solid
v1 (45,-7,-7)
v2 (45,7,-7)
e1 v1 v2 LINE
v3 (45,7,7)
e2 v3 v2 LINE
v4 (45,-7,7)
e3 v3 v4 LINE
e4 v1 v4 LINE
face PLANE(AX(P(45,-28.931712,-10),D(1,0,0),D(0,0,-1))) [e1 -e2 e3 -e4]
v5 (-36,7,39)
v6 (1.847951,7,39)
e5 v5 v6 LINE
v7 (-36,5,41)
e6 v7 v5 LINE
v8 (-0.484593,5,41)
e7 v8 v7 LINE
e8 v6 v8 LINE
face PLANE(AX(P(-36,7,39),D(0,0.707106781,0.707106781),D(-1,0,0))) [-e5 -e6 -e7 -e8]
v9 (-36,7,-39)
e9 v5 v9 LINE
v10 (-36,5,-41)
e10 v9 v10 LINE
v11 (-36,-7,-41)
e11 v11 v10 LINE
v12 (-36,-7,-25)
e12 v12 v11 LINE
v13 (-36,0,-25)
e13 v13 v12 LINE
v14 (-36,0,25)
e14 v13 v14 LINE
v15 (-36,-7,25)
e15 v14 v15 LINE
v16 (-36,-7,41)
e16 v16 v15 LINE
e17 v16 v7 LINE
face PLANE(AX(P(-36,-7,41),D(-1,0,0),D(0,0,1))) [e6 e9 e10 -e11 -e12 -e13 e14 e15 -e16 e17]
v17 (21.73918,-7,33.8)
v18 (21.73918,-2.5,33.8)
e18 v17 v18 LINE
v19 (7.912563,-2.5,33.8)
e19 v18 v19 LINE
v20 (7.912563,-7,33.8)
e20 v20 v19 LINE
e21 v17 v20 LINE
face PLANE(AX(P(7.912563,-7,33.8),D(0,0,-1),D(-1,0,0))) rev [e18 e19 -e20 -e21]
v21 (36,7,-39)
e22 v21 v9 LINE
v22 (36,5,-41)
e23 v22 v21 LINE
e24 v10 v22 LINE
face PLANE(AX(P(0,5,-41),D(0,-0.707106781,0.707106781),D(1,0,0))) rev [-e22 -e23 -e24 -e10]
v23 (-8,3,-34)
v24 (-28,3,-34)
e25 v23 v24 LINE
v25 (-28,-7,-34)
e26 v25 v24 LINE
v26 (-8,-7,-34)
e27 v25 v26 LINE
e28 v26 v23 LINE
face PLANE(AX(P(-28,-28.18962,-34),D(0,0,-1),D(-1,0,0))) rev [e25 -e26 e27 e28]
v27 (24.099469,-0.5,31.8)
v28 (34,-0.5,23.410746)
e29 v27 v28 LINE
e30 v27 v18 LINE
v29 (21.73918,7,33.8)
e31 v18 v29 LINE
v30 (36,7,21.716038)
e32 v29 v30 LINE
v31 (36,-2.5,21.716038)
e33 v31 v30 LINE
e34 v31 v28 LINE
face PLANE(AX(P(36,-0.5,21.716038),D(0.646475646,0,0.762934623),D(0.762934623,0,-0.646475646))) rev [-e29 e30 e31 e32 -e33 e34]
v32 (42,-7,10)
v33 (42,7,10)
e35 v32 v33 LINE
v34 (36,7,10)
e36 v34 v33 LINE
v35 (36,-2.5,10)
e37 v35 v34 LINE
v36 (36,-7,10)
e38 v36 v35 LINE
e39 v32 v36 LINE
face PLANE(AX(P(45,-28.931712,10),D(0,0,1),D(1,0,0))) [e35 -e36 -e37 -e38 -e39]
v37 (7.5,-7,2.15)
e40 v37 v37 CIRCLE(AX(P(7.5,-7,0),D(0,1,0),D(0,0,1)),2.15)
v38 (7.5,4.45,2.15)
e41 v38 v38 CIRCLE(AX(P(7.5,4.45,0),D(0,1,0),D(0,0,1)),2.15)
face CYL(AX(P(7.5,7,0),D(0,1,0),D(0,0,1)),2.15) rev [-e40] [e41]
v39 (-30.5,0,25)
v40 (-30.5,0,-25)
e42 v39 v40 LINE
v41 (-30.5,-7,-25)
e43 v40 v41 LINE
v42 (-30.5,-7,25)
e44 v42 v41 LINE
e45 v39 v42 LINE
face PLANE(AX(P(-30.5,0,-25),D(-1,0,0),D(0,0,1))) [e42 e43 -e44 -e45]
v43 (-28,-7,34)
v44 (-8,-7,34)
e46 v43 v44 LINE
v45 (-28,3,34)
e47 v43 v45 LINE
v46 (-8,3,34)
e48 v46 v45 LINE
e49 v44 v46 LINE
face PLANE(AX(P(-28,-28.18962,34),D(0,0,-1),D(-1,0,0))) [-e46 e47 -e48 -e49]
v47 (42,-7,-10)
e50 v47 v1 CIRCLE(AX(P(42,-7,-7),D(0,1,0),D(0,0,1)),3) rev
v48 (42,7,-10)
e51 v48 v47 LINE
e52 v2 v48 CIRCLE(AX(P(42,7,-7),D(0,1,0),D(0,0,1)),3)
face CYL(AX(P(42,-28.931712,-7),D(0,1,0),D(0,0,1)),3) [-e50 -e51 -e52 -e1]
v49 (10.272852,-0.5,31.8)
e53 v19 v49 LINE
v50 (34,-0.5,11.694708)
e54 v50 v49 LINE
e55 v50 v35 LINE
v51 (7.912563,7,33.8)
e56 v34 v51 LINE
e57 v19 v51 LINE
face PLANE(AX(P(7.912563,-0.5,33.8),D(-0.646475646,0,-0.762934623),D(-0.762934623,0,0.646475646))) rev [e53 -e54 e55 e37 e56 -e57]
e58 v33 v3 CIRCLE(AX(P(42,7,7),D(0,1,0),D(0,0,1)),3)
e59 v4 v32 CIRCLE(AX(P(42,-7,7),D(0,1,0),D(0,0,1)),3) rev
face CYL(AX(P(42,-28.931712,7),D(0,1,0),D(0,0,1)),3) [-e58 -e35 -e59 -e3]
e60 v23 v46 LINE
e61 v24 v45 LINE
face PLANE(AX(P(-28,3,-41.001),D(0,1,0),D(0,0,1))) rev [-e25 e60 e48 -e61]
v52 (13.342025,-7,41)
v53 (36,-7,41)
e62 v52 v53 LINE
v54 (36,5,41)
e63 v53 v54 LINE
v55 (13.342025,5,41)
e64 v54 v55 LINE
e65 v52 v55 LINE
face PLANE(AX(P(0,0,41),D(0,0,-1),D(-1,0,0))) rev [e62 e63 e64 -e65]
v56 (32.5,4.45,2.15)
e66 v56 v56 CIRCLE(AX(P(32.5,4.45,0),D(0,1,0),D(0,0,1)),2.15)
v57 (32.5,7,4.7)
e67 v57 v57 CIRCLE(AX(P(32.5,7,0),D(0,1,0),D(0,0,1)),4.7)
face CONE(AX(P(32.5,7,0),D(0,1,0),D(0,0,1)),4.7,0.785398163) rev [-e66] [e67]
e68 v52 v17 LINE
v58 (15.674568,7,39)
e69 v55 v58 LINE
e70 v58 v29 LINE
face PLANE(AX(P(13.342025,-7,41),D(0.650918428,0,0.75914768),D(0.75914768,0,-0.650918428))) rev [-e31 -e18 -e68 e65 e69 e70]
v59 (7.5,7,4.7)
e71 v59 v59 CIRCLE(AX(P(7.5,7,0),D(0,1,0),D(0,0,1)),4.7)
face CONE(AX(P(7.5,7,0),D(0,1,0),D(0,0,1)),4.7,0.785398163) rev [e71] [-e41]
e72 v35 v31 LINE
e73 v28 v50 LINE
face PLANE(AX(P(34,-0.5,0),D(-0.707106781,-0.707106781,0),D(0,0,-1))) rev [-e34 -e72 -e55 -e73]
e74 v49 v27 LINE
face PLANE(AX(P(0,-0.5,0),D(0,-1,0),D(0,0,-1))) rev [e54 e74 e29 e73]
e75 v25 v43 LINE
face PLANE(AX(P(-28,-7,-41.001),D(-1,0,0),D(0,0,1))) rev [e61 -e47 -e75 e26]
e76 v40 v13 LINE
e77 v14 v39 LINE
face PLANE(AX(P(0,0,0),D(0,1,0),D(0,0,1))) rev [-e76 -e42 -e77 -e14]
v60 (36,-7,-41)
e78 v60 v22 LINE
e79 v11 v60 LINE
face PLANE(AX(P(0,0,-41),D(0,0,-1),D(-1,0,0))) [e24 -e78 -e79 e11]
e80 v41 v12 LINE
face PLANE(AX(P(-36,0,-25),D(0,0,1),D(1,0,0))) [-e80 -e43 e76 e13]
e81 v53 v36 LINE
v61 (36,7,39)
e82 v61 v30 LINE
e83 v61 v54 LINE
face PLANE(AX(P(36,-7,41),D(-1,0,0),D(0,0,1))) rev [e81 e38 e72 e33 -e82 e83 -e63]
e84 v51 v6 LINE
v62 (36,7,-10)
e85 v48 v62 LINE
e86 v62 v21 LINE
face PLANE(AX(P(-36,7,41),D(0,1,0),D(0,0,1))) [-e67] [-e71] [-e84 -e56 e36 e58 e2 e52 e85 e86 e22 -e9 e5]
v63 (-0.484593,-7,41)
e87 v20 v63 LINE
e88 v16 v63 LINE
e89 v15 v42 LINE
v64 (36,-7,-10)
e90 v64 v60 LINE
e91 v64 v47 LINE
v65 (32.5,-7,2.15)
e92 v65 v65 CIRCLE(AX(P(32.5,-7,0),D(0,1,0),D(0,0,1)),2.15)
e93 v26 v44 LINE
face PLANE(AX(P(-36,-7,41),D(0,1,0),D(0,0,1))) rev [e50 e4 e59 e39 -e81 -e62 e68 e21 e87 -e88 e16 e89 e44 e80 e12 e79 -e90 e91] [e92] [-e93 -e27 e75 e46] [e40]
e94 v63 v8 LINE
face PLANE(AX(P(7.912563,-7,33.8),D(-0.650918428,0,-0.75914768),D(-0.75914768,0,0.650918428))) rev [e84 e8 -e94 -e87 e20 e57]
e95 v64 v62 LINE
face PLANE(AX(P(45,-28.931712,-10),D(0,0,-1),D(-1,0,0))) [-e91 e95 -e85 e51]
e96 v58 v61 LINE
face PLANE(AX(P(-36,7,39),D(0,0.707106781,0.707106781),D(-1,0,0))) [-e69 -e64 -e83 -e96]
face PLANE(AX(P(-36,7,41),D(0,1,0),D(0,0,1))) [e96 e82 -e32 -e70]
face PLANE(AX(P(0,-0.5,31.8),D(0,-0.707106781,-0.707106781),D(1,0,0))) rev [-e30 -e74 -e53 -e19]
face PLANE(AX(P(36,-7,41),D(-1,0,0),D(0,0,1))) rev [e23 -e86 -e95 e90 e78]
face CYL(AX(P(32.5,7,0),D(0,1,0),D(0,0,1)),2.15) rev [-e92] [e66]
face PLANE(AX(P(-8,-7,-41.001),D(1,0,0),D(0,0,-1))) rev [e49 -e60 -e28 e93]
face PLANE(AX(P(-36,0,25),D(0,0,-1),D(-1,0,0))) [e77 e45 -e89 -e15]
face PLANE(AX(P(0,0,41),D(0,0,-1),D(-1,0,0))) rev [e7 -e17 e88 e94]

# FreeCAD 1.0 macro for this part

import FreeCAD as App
import Part
import Sketcher
Q = App.Units.Quantity


def edges_at(feature, points):
    """Names of the edges that pass closest to the given points."""
    edges = feature.Shape.Edges
    near = lambda p: min(range(len(edges)), key=lambda i: edges[i].distToShape(Part.Vertex(*p))[0])
    return sorted({f"Edge{near(p) + 1}" for p in points})

doc = App.newDocument("Part")
body = doc.addObject("PartDesign::Body", "Body")

# Sketch on XY plane
sketch1 = body.newObject("Sketcher::SketchObject", "Sketch")
sketch1.AttachmentSupport = (doc.getObject("XY_Plane"), [""])
sketch1.MapMode = "FlatFace"
sketch1.addGeometry([
    Part.LineSegment(App.Vector(-36, 7, 0), App.Vector(-36, -7, 0)),
    Part.LineSegment(App.Vector(-36, -7, 0), App.Vector(36, -7, 0)),
    Part.LineSegment(App.Vector(36, -7, 0), App.Vector(36, 7, 0)),
    Part.LineSegment(App.Vector(36, 7, 0), App.Vector(-36, 7, 0)),
], False)
sketch1.addConstraint([
    Sketcher.Constraint("Coincident", 0, 2, 1, 1),
    Sketcher.Constraint("Coincident", 1, 2, 2, 1),
    Sketcher.Constraint("Coincident", 2, 2, 3, 1),
    Sketcher.Constraint("Coincident", 3, 2, 0, 1),
    Sketcher.Constraint("Vertical", 0),
    Sketcher.Constraint("Horizontal", 1),
    Sketcher.Constraint("Vertical", 2),
    Sketcher.Constraint("Horizontal", 3),
    Sketcher.Constraint("Symmetric", 0, 2, 2, 2, -1, 1),
    Sketcher.Constraint("DistanceX", 1, 1, 1, 2, Q("72 mm")),
    Sketcher.Constraint("DistanceY", 0, 2, 0, 1, Q("14 mm")),
])
pad1 = body.newObject("PartDesign::Pad", "Pad")
pad1.Profile = sketch1
pad1.Length = 82
pad1.Midplane = True

# Sketch on XZ plane
sketch2 = body.newObject("Sketcher::SketchObject", "Sketch001")
sketch2.AttachmentSupport = (doc.getObject("XZ_Plane"), [""])
sketch2.MapMode = "FlatFace"
sketch2.AttachmentOffset = App.Placement(App.Vector(0, 0, -7), App.Rotation())
sketch2.addGeometry([
    Part.LineSegment(App.Vector(36, -10, 0), App.Vector(36, 10, 0)),
    Part.LineSegment(App.Vector(36, 10, 0), App.Vector(45, 10, 0)),
    Part.LineSegment(App.Vector(45, 10, 0), App.Vector(45, -10, 0)),
    Part.LineSegment(App.Vector(45, -10, 0), App.Vector(36, -10, 0)),
], False)
sketch2.addConstraint([
    Sketcher.Constraint("Coincident", 0, 2, 1, 1),
    Sketcher.Constraint("Coincident", 1, 2, 2, 1),
    Sketcher.Constraint("Coincident", 2, 2, 3, 1),
    Sketcher.Constraint("Coincident", 3, 2, 0, 1),
    Sketcher.Constraint("Vertical", 0),
    Sketcher.Constraint("Horizontal", 1),
    Sketcher.Constraint("Vertical", 2),
    Sketcher.Constraint("Horizontal", 3),
    Sketcher.Constraint("DistanceX", 1, 1, 1, 2, Q("9 mm")),
    Sketcher.Constraint("DistanceY", 0, 1, 0, 2, Q("20 mm")),
    Sketcher.Constraint("DistanceX", -1, 1, 0, 2, Q("36 mm")),
    Sketcher.Constraint("DistanceY", -1, 1, 0, 2, Q("10 mm")),
])
pad2 = body.newObject("PartDesign::Pad", "Pad001")
pad2.Profile = sketch2
pad2.Length = 14

# Sketch on XZ plane
sketch3 = body.newObject("Sketcher::SketchObject", "Sketch002")
sketch3.AttachmentSupport = (doc.getObject("XZ_Plane"), [""])
sketch3.MapMode = "FlatFace"
sketch3.AttachmentOffset = App.Placement(App.Vector(0, 0, -7), App.Rotation())
sketch3.addGeometry([
    Part.Circle(App.Vector(32.5, 0, 0), App.Vector(0, 0, 1), 2.15),
    Part.Circle(App.Vector(7.5, 0, 0), App.Vector(0, 0, 1), 2.15),
], False)
sketch3.addConstraint([
    Sketcher.Constraint("Equal", 0, 1),
    Sketcher.Constraint("PointOnObject", 0, 3, -1),
    Sketcher.Constraint("PointOnObject", 1, 3, -1),
    Sketcher.Constraint("Diameter", 0, Q("4.3 mm")),
    Sketcher.Constraint("DistanceX", 1, 3, 0, 3, Q("25 mm")),
    Sketcher.Constraint("DistanceX", -1, 1, 0, 3, Q("32.5 mm")),
])
doc.recompute()
hole = body.newObject("PartDesign::Hole", "Hole")
hole.Profile = sketch3
hole.ThreadType = "None"
hole.Diameter = 4.3
hole.DepthType = "ThroughAll"
hole.HoleCutType = "Countersink"
hole.HoleCutDiameter = 9.4
hole.HoleCutCountersinkAngle = 90
hole.Reversed = True

# Sketch on XY plane
sketch4 = body.newObject("Sketcher::SketchObject", "Sketch003")
sketch4.AttachmentSupport = (doc.getObject("XY_Plane"), [""])
sketch4.MapMode = "FlatFace"
sketch4.AttachmentOffset = App.Placement(App.Vector(0, 0, 41), App.Rotation())
sketch4.addGeometry([
    Part.LineSegment(App.Vector(-28, 3, 0), App.Vector(-28, -7, 0)),
    Part.LineSegment(App.Vector(-28, -7, 0), App.Vector(-8, -7, 0)),
    Part.LineSegment(App.Vector(-8, -7, 0), App.Vector(-8, 3, 0)),
    Part.LineSegment(App.Vector(-8, 3, 0), App.Vector(-28, 3, 0)),
], False)
sketch4.addConstraint([
    Sketcher.Constraint("Coincident", 0, 2, 1, 1),
    Sketcher.Constraint("Coincident", 1, 2, 2, 1),
    Sketcher.Constraint("Coincident", 2, 2, 3, 1),
    Sketcher.Constraint("Coincident", 3, 2, 0, 1),
    Sketcher.Constraint("Vertical", 0),
    Sketcher.Constraint("Horizontal", 1),
    Sketcher.Constraint("Vertical", 2),
    Sketcher.Constraint("Horizontal", 3),
    Sketcher.Constraint("DistanceX", 1, 1, 1, 2, Q("20 mm")),
    Sketcher.Constraint("DistanceY", 0, 2, 0, 1, Q("10 mm")),
    Sketcher.Constraint("DistanceX", 0, 2, -1, 1, Q("28 mm")),
    Sketcher.Constraint("DistanceY", 0, 2, -1, 1, Q("7 mm")),
])
pocket1 = body.newObject("PartDesign::Pocket", "Pocket")
pocket1.Profile = sketch4
pocket1.Type = "UpToFirst"

# Sketch on XZ plane
sketch5 = body.newObject("Sketcher::SketchObject", "Sketch004")
sketch5.AttachmentSupport = (doc.getObject("XZ_Plane"), [""])
sketch5.MapMode = "FlatFace"
sketch5.AttachmentOffset = App.Placement(App.Vector(0, 0, 7), App.Rotation())
sketch5.addGeometry([
    Part.LineSegment(App.Vector(-36, -25, 0), App.Vector(-36, 25, 0)),
    Part.LineSegment(App.Vector(-36, 25, 0), App.Vector(-30.5, 25, 0)),
    Part.LineSegment(App.Vector(-30.5, 25, 0), App.Vector(-30.5, -25, 0)),
    Part.LineSegment(App.Vector(-30.5, -25, 0), App.Vector(-36, -25, 0)),
], False)
sketch5.addConstraint([
    Sketcher.Constraint("Coincident", 0, 2, 1, 1),
    Sketcher.Constraint("Coincident", 1, 2, 2, 1),
    Sketcher.Constraint("Coincident", 2, 2, 3, 1),
    Sketcher.Constraint("Coincident", 3, 2, 0, 1),
    Sketcher.Constraint("Vertical", 0),
    Sketcher.Constraint("Horizontal", 1),
    Sketcher.Constraint("Vertical", 2),
    Sketcher.Constraint("Horizontal", 3),
    Sketcher.Constraint("DistanceY", 0, 1, 0, 2, Q("50 mm")),
    Sketcher.Constraint("DistanceX", 1, 1, 1, 2, Q("5.5 mm")),
    Sketcher.Constraint("DistanceX", 0, 2, -1, 1, Q("36 mm")),
    Sketcher.Constraint("DistanceY", -1, 1, 0, 2, Q("25 mm")),
])
pocket2 = body.newObject("PartDesign::Pocket", "Pocket001")
pocket2.Profile = sketch5
pocket2.Length = 7
doc.recompute()

chamfer = body.newObject("PartDesign::Chamfer", "Chamfer")
chamfer.Base = (pocket2, edges_at(pocket2, [(0, 7, -41), (0, 7, 41)]))
chamfer.Size = 2

# Sketch on XZ plane
sketch6 = body.newObject("Sketcher::SketchObject", "Sketch005")
sketch6.AttachmentSupport = (doc.getObject("XZ_Plane"), [""])
sketch6.MapMode = "FlatFace"
sketch6.AttachmentOffset = App.Placement(App.Vector(0, 0, -3), App.Rotation())
sketch6.addGeometry([
    Part.LineSegment(App.Vector(-28, -34, 0), App.Vector(-28, -41, 0)),
    Part.LineSegment(App.Vector(-28, -41, 0), App.Vector(-8, -41, 0)),
    Part.LineSegment(App.Vector(-8, -41, 0), App.Vector(-8, -34, 0)),
    Part.LineSegment(App.Vector(-8, -34, 0), App.Vector(-28, -34, 0)),
], False)
sketch6.addConstraint([
    Sketcher.Constraint("Coincident", 0, 2, 1, 1),
    Sketcher.Constraint("Coincident", 1, 2, 2, 1),
    Sketcher.Constraint("Coincident", 2, 2, 3, 1),
    Sketcher.Constraint("Coincident", 3, 2, 0, 1),
    Sketcher.Constraint("Vertical", 0),
    Sketcher.Constraint("Horizontal", 1),
    Sketcher.Constraint("Vertical", 2),
    Sketcher.Constraint("Horizontal", 3),
    Sketcher.Constraint("DistanceX", 1, 1, 1, 2, Q("20 mm")),
    Sketcher.Constraint("DistanceY", 0, 2, 0, 1, Q("7 mm")),
    Sketcher.Constraint("DistanceX", 0, 2, -1, 1, Q("28 mm")),
    Sketcher.Constraint("DistanceY", 0, 2, -1, 1, Q("41 mm")),
])
pad3 = body.newObject("PartDesign::Pad", "Pad002")
pad3.Profile = sketch6
pad3.Length = 10
doc.recompute()

mirrored = body.newObject("PartDesign::Mirrored", "Mirrored")
mirrored.Originals = [pad3]
mirrored.MirrorPlane = (doc.getObject("XY_Plane"), [""])
body.Tip = mirrored

# Sketch on XZ plane
sketch7 = body.newObject("Sketcher::SketchObject", "Sketch006")
sketch7.AttachmentSupport = (doc.getObject("XZ_Plane"), [""])
sketch7.MapMode = "FlatFace"
sketch7.AttachmentOffset = App.Placement(App.Vector(0, 0, 7), App.Rotation())
sketch7.addGeometry([
    Part.LineSegment(App.Vector(13.342025, 41, 0), App.Vector(21.73918, 33.8, 0)),
    Part.LineSegment(App.Vector(21.73918, 33.8, 0), App.Vector(7.912563, 33.8, 0)),
    Part.LineSegment(App.Vector(7.912563, 33.8, 0), App.Vector(-0.484593, 41, 0)),
    Part.LineSegment(App.Vector(-0.484593, 41, 0), App.Vector(13.342025, 41, 0)),
], False)
sketch7.addConstraint([
    Sketcher.Constraint("Coincident", 0, 2, 1, 1),
    Sketcher.Constraint("Coincident", 1, 2, 2, 1),
    Sketcher.Constraint("Coincident", 2, 2, 3, 1),
    Sketcher.Constraint("Coincident", 3, 2, 0, 1),
    Sketcher.Constraint("Horizontal", 1),
    Sketcher.Constraint("Horizontal", 3),
    Sketcher.Constraint("Parallel", 0, 2),
    Sketcher.Constraint("DistanceY", -1, 1, 2, 2, Q("41 mm")),
    Sketcher.Constraint("DistanceY", -1, 1, 0, 2, Q("33.8 mm")),
    Sketcher.Constraint("DistanceX", 1, 2, 1, 1, Q("13.826617 mm")),
    Sketcher.Constraint("DistanceX", -1, 1, 0, 2, Q("21.73918 mm")),
    Sketcher.Constraint("DistanceX", 1, 2, 3, 2, Q("5.429462 mm")),
])
pocket3 = body.newObject("PartDesign::Pocket", "Pocket002")
pocket3.Profile = sketch7
pocket3.Length = 14

# Sketch on XZ plane
sketch8 = body.newObject("Sketcher::SketchObject", "Sketch007")
sketch8.AttachmentSupport = (doc.getObject("XZ_Plane"), [""])
sketch8.MapMode = "FlatFace"
sketch8.AttachmentOffset = App.Placement(App.Vector(0, 0, -7), App.Rotation())
sketch8.addGeometry([
    Part.LineSegment(App.Vector(36, 10, 0), App.Vector(7.912563, 33.8, 0)),
    Part.LineSegment(App.Vector(7.912563, 33.8, 0), App.Vector(21.73918, 33.8, 0)),
    Part.LineSegment(App.Vector(21.73918, 33.8, 0), App.Vector(36, 21.716038, 0)),
    Part.LineSegment(App.Vector(36, 21.716038, 0), App.Vector(36, 10, 0)),
], False)
sketch8.addConstraint([
    Sketcher.Constraint("Coincident", 0, 2, 1, 1),
    Sketcher.Constraint("Coincident", 1, 2, 2, 1),
    Sketcher.Constraint("Coincident", 2, 2, 3, 1),
    Sketcher.Constraint("Coincident", 3, 2, 0, 1),
    Sketcher.Constraint("Horizontal", 1),
    Sketcher.Constraint("Vertical", 3),
    Sketcher.Constraint("Parallel", 0, 2),
    Sketcher.Constraint("DistanceX", -1, 1, 2, 2, Q("36 mm")),
    Sketcher.Constraint("DistanceY", -1, 1, 3, 2, Q("10 mm")),
    Sketcher.Constraint("DistanceY", -1, 1, 0, 2, Q("33.8 mm")),
    Sketcher.Constraint("Distance", 0, Q("36.814999 mm")),
    Sketcher.Constraint("DistanceY", 3, 2, 3, 1, Q("11.716038 mm")),
])
pocket4 = body.newObject("PartDesign::Pocket", "Pocket003")
pocket4.Profile = sketch8
pocket4.Length = 7.5
pocket4.Reversed = True
doc.recompute()

chamfer2 = body.newObject("PartDesign::Chamfer", "Chamfer001")
chamfer2.Base = (pocket4, edges_at(pocket4, [(14.826, -0.5, 33.8), (36, -0.5, 15.858)]))
chamfer2.Size = 2
doc.recompute()

fillet = body.newObject("PartDesign::Fillet", "Fillet")
fillet.Base = (chamfer2, edges_at(chamfer2, [(45, 0, 10), (45, 0, -10)]))
fillet.Radius = 3

doc.recompute()
